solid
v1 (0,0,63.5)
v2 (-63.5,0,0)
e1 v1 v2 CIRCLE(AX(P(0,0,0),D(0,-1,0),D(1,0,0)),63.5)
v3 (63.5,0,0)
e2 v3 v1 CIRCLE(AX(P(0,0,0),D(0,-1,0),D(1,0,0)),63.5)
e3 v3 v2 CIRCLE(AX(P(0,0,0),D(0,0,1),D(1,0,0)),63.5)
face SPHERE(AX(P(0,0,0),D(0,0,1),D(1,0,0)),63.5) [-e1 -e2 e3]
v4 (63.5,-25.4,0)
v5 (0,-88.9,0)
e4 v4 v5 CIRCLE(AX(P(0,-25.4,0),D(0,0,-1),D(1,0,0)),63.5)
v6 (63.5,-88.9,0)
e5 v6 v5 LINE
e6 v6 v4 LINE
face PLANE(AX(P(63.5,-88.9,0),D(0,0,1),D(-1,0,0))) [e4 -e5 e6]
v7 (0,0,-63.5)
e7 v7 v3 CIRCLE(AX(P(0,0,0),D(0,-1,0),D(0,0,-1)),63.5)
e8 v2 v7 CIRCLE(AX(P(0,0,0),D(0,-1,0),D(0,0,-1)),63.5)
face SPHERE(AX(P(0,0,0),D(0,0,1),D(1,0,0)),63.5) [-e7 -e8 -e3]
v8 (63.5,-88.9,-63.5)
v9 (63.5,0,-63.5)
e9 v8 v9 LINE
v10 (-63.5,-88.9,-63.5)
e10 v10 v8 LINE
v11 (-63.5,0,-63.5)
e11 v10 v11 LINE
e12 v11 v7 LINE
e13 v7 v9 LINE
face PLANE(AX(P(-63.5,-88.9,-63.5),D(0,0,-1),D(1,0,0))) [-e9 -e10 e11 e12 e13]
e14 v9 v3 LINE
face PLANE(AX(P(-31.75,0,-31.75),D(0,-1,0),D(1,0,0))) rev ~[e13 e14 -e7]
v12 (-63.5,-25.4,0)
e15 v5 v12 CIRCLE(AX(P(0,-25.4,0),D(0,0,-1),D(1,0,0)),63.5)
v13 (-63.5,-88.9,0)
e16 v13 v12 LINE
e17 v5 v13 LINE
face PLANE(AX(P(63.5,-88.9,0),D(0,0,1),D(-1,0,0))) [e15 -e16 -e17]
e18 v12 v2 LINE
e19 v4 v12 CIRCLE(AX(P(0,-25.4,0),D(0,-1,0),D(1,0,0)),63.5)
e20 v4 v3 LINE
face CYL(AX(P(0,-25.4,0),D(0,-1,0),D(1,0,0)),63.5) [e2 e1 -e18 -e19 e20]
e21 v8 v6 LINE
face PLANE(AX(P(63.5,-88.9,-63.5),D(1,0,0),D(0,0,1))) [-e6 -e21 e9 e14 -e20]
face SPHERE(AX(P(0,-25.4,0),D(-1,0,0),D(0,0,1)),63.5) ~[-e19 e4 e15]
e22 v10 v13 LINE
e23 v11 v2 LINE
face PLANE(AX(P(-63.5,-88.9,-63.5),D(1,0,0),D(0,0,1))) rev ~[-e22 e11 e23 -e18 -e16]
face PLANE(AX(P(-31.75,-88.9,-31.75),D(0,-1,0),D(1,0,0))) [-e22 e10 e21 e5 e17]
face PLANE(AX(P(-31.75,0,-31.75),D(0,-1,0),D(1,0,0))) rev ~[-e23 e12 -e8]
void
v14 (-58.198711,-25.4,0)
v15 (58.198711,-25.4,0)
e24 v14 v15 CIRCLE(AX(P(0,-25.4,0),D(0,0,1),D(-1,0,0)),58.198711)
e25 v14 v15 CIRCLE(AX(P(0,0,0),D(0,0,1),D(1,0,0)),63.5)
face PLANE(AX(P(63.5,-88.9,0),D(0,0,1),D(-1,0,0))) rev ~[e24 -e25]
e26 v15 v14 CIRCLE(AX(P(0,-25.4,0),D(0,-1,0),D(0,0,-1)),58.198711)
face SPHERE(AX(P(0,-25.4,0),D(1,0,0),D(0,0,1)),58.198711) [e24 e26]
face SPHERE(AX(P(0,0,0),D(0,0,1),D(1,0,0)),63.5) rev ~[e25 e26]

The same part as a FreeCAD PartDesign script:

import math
import FreeCAD as App
import Part
import Sketcher
Q = App.Units.Quantity

doc = App.newDocument("Part")
body = doc.addObject("PartDesign::Body", "Body")

sketch1 = body.newObject("Sketcher::SketchObject", "Sketch")
sketch1.AttachmentSupport = (doc.getObject("XZ_Plane"), [""])
sketch1.MapMode = "FlatFace"
sketch1.addGeometry([
    Part.LineSegment(App.Vector(0, 64, 0), App.Vector(0, -64, 0)),
    Part.ArcOfCircle(Part.Circle(App.Vector(0, 0, 0), App.Vector(0, 0, 1), 64), math.radians(-90), math.radians(0)),
    Part.ArcOfCircle(Part.Circle(App.Vector(0, 0, 0), App.Vector(0, 0, 1), 64), math.radians(0), math.radians(90)),
], False)
sketch1.addConstraint([
    Sketcher.Constraint("Coincident", 0, 2, 1, 1),
    Sketcher.Constraint("Tangent", 1, 2, 2, 1),
    Sketcher.Constraint("Coincident", 2, 2, 0, 1),
    Sketcher.Constraint("Vertical", 0),
    Sketcher.Constraint("Coincident", 1, 3, -1, 1),
    Sketcher.Constraint("Equal", 1, 2),
    Sketcher.Constraint("PointOnObject", 0, 2, -2),
    Sketcher.Constraint("PointOnObject", 1, 2, -1),
    Sketcher.Constraint("Radius", 1, Q("2.5 in")),
])
revolution = body.newObject("PartDesign::Revolution", "Revolution")
revolution.Profile = sketch1
revolution.ReferenceAxis = (sketch1, ["V_Axis"])
revolution.Angle = 360

sketch2 = body.newObject("Sketcher::SketchObject", "Sketch001")
sketch2.AttachmentSupport = (doc.getObject("XZ_Plane"), [""])
sketch2.MapMode = "FlatFace"
sketch2.AttachmentOffset = App.Placement(App.Vector(0, 0, 1 * 25.4), App.Rotation())
sketch2.addGeometry([
    Part.LineSegment(App.Vector(-64, 0, 0), App.Vector(64, 0, 0)),
    Part.ArcOfCircle(Part.Circle(App.Vector(0, 0, 0), App.Vector(0, 0, 1), 64), math.radians(0), math.radians(180)),
], False)
sketch2.addConstraint([
    Sketcher.Constraint("Coincident", 0, 1, 1, 2),
    Sketcher.Constraint("Coincident", 1, 1, 0, 2),
    Sketcher.Constraint("Horizontal", 0),
    Sketcher.Constraint("Coincident", 1, 3, -1, 1),
    Sketcher.Constraint("PointOnObject", 0, 1, -1),
    Sketcher.Constraint("Radius", 1, Q("2.5 in")),
])
pad1 = body.newObject("PartDesign::Pad", "Pad")
pad1.Profile = sketch2
pad1.Length = Q("1 in")
pad1.Reversed = True

sketch3 = body.newObject("Sketcher::SketchObject", "Sketch002")
sketch3.AttachmentSupport = (doc.getObject("XZ_Plane"), [""])
sketch3.MapMode = "FlatFace"
sketch3.AttachmentOffset = App.Placement(App.Vector(0, 0, 1 * 25.4), App.Rotation())
sketch3.addGeometry([
    Part.ArcOfCircle(Part.Circle(App.Vector(0, 0, 0), App.Vector(0, 0, 1), 64), math.radians(0), math.radians(180)),
    Part.LineSegment(App.Vector(-64, 0, 0), App.Vector(-58, 0, 0)),
    Part.ArcOfCircle(Part.Circle(App.Vector(0, 0, 0), App.Vector(0, 0, 1), 58), math.radians(0), math.radians(180)),
    Part.LineSegment(App.Vector(58, 0, 0), App.Vector(64, 0, 0)),
], False)
sketch3.addConstraint([
    Sketcher.Constraint("Coincident", 0, 2, 1, 1),
    Sketcher.Constraint("Coincident", 1, 2, 2, 2),
    Sketcher.Constraint("Coincident", 2, 1, 3, 1),
    Sketcher.Constraint("Coincident", 3, 2, 0, 1),
    Sketcher.Constraint("Horizontal", 1),
    Sketcher.Constraint("Horizontal", 3),
    Sketcher.Constraint("Coincident", 0, 3, -1, 1),
    Sketcher.Constraint("Coincident", 2, 3, -1, 1),
    Sketcher.Constraint("PointOnObject", 0, 2, -1),
    Sketcher.Constraint("PointOnObject", 2, 1, -1),
    Sketcher.Constraint("Radius", 0, Q("2.5 in")),
    Sketcher.Constraint("Radius", 2, Q("58.198711 mm")),
])
revolution2 = body.newObject("PartDesign::Revolution", "Revolution001")
revolution2.Profile = sketch3
revolution2.ReferenceAxis = (sketch3, ["H_Axis"])
revolution2.Angle = 90

sketch4 = body.newObject("Sketcher::SketchObject", "Sketch003")
sketch4.AttachmentSupport = (doc.getObject("XZ_Plane"), [""])
sketch4.MapMode = "FlatFace"
sketch4.AttachmentOffset = App.Placement(App.Vector(0, 0, 3.5 * 25.4), App.Rotation())
sketch4.addGeometry([
    Part.LineSegment(App.Vector(-64, 0, 0), App.Vector(-64, -64, 0)),
    Part.LineSegment(App.Vector(-64, -64, 0), App.Vector(64, -64, 0)),
    Part.LineSegment(App.Vector(64, -64, 0), App.Vector(64, 0, 0)),
    Part.LineSegment(App.Vector(64, 0, 0), App.Vector(-64, 0, 0)),
], False)
sketch4.addConstraint([
    Sketcher.Constraint("Coincident", 0, 2, 1, 1),
    Sketcher.Constraint("Coincident", 1, 2, 2, 1),
    Sketcher.Constraint("Coincident", 2, 2, 3, 1),
    Sketcher.Constraint("Coincident", 3, 2, 0, 1),
    Sketcher.Constraint("Vertical", 0),
    Sketcher.Constraint("Horizontal", 1),
    Sketcher.Constraint("Vertical", 2),
    Sketcher.Constraint("Horizontal", 3),
    Sketcher.Constraint("Symmetric", 2, 2, 3, 2, -1, 1),
    Sketcher.Constraint("DistanceX", 1, 1, 1, 2, Q("5 in")),
    Sketcher.Constraint("DistanceY", 0, 2, 0, 1, Q("2.5 in")),
])
pad2 = body.newObject("PartDesign::Pad", "Pad001")
pad2.Profile = sketch4
pad2.Length = Q("3.5 in")
pad2.Reversed = True

doc.recompute()
